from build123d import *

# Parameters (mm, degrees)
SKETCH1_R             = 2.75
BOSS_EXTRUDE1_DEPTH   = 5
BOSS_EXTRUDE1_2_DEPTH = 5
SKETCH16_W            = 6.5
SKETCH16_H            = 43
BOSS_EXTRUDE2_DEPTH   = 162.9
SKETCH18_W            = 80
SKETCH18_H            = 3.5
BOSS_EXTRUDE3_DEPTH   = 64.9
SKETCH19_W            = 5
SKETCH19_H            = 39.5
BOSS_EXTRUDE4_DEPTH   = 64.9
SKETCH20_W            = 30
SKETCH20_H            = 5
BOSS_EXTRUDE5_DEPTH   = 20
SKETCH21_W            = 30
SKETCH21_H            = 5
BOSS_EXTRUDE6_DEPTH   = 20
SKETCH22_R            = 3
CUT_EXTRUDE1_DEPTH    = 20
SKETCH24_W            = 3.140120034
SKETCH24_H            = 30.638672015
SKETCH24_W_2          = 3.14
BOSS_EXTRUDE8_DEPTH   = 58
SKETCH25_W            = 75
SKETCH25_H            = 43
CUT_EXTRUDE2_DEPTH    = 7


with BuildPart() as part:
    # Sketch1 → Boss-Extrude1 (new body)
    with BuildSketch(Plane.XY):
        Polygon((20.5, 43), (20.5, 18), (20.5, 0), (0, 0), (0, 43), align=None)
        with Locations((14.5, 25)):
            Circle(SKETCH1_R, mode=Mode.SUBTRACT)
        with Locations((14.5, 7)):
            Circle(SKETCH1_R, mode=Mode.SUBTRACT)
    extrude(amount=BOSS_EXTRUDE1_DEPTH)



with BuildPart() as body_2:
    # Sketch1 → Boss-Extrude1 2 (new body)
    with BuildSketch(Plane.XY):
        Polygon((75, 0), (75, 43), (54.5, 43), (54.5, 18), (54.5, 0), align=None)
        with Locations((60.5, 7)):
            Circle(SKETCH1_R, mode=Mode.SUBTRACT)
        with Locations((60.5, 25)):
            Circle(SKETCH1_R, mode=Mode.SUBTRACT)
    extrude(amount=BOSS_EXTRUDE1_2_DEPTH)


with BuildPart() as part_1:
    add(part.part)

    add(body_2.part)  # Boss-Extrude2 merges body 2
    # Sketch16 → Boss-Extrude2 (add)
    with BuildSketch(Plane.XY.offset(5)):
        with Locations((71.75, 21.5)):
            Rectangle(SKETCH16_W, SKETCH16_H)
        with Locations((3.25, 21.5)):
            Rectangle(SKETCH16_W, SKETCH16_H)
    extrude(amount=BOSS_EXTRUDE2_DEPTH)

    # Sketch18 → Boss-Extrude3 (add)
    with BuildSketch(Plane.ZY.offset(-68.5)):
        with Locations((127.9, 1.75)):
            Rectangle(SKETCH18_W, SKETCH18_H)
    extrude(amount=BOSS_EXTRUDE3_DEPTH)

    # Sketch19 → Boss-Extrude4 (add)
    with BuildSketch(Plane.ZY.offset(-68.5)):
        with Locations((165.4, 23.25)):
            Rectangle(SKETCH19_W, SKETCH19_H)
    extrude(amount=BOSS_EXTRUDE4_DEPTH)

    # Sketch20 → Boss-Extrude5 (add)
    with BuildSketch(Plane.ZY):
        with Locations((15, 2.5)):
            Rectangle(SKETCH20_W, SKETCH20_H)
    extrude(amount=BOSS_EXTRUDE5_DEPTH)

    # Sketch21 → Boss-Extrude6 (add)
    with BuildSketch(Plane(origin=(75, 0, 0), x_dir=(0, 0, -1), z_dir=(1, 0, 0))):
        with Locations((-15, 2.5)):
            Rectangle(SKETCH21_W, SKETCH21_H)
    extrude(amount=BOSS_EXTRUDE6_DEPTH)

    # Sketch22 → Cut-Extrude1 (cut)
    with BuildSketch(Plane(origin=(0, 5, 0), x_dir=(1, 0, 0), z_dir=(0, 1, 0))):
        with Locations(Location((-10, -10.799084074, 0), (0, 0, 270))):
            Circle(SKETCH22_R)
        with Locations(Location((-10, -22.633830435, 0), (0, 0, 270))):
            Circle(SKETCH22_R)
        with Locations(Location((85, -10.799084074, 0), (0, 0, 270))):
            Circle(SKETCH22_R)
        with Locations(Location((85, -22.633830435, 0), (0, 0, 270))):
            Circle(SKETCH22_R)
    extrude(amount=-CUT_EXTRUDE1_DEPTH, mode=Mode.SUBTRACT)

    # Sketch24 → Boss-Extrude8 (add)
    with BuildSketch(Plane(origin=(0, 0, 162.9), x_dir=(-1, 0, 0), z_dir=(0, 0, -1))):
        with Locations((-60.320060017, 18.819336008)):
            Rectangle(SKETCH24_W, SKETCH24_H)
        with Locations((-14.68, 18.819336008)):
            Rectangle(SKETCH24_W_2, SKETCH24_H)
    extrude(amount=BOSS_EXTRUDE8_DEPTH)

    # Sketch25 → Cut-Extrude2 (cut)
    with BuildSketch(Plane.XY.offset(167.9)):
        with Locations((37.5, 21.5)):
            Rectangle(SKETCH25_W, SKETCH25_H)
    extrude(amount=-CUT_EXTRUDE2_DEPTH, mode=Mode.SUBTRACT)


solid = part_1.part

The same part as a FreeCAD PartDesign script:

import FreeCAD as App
import Part
import Sketcher

V = App.Vector

doc = App.newDocument("Part")
body = doc.addObject("PartDesign::Body", "Body")

# Sketch on XY plane
sketch1 = body.newObject("Sketcher::SketchObject", "Sketch")
sketch1.AttachmentSupport = (doc.getObject("XY_Plane"), [""])
sketch1.MapMode = "FlatFace"
sketch1.addGeometry([
    Part.LineSegment(V(20.5, 0, 0), V(20.5, 43, 0)),  # 0
    Part.LineSegment(V(20.5, 43, 0), V(0, 43, 0)),  # 1
    Part.LineSegment(V(0, 43, 0), V(0, 0, 0)),  # 2
    Part.LineSegment(V(0, 0, 0), V(20.5, 0, 0)),  # 3
    Part.Circle(V(14.5, 7, 0), V(0, 0, 1), 2.8),  # 4
    Part.Circle(V(14.5, 25, 0), V(0, 0, 1), 2.8),  # 5
], False)
sketch1.addConstraint([
    Sketcher.Constraint("Coincident", 0, 2, 1, 1),
    Sketcher.Constraint("Coincident", 1, 2, 2, 1),
    Sketcher.Constraint("Coincident", 2, 2, 3, 1),
    Sketcher.Constraint("Coincident", 3, 2, 0, 1),
    Sketcher.Constraint("Vertical", 0),
    Sketcher.Constraint("Horizontal", 1),
    Sketcher.Constraint("Vertical", 2),
    Sketcher.Constraint("Horizontal", 3),
    Sketcher.Constraint("Coincident", 2, 2, -1, 1),
    Sketcher.Constraint("Equal", 4, 5),
    Sketcher.Constraint("Vertical", 4, 3, 5, 3),
    Sketcher.Constraint("Diameter", 4, 5.5),
    Sketcher.Constraint("DistanceY", 0, 1, 0, 2, 43.0),
    Sketcher.Constraint("DistanceX", 1, 2, 1, 1, 20.5),
    Sketcher.Constraint("DistanceY", -1, 1, 4, 3, 7.0),
    Sketcher.Constraint("DistanceY", -1, 1, 5, 3, 25.0),
    Sketcher.Constraint("DistanceX", 5, 3, 0, 2, 6.0),
])
pad1 = body.newObject("PartDesign::Pad", "Pad")
pad1.Profile = sketch1
pad1.Length = 5
body2 = doc.addObject("PartDesign::Body", "Body001")

# Sketch on XY plane
sketch2 = body2.newObject("Sketcher::SketchObject", "Sketch001")
sketch2.AttachmentSupport = (doc.getObject("XY_Plane001"), [""])
sketch2.MapMode = "FlatFace"
sketch2.addGeometry([
    Part.LineSegment(V(75, 0, 0), V(75, 43, 0)),  # 0
    Part.LineSegment(V(75, 43, 0), V(54.5, 43, 0)),  # 1
    Part.LineSegment(V(54.5, 43, 0), V(54.5, 0, 0)),  # 2
    Part.LineSegment(V(54.5, 0, 0), V(75, 0, 0)),  # 3
    Part.Circle(V(60.5, 7, 0), V(0, 0, 1), 2.8),  # 4
    Part.Circle(V(60.5, 25, 0), V(0, 0, 1), 2.8),  # 5
], False)
sketch2.addConstraint([
    Sketcher.Constraint("Coincident", 0, 2, 1, 1),
    Sketcher.Constraint("Coincident", 1, 2, 2, 1),
    Sketcher.Constraint("Coincident", 2, 2, 3, 1),
    Sketcher.Constraint("Coincident", 3, 2, 0, 1),
    Sketcher.Constraint("Vertical", 0),
    Sketcher.Constraint("Horizontal", 1),
    Sketcher.Constraint("Vertical", 2),
    Sketcher.Constraint("Horizontal", 3),
    Sketcher.Constraint("Equal", 4, 5),
    Sketcher.Constraint("PointOnObject", 2, 2, -1),
    Sketcher.Constraint("Vertical", 4, 3, 5, 3),
    Sketcher.Constraint("Diameter", 4, 5.5),
    Sketcher.Constraint("DistanceY", 0, 1, 0, 2, 43.0),
    Sketcher.Constraint("DistanceX", 1, 2, 1, 1, 20.5),
    Sketcher.Constraint("DistanceY", -1, 1, 4, 3, 7.0),
    Sketcher.Constraint("DistanceY", -1, 1, 5, 3, 25.0),
    Sketcher.Constraint("DistanceX", -1, 1, 0, 2, 75.0),
    Sketcher.Constraint("DistanceX", 1, 2, 5, 3, 6.0),
])
pad2 = body2.newObject("PartDesign::Pad", "Pad001")
pad2.Profile = sketch2
pad2.Length = 5
body.AllowCompound = True
doc.recompute()

boolean = body.newObject("PartDesign::Boolean", "Boolean")
boolean.Type = "Fuse"
boolean.addObjects([body2])

# Sketch on XY plane
sketch3 = body.newObject("Sketcher::SketchObject", "Sketch002")
sketch3.AttachmentSupport = (doc.getObject("XY_Plane"), [""])
sketch3.MapMode = "FlatFace"
sketch3.AttachmentOffset = App.Placement(V(0, 0, 5), App.Rotation())
sketch3.addGeometry([
    Part.LineSegment(V(68, 43, 0), V(68, 0, 0)),  # 0
    Part.LineSegment(V(68, 0, 0), V(75, 0, 0)),  # 1
    Part.LineSegment(V(75, 0, 0), V(75, 43, 0)),  # 2
    Part.LineSegment(V(75, 43, 0), V(68, 43, 0)),  # 3
    Part.LineSegment(V(0, 43, 0), V(0, 0, 0)),  # 4
    Part.LineSegment(V(0, 0, 0), V(6, 0, 0)),  # 5
    Part.LineSegment(V(6, 0, 0), V(6, 43, 0)),  # 6
    Part.LineSegment(V(6, 43, 0), V(0, 43, 0)),  # 7
], False)
sketch3.addConstraint([
    Sketcher.Constraint("Coincident", 0, 2, 1, 1),
    Sketcher.Constraint("Coincident", 1, 2, 2, 1),
    Sketcher.Constraint("Coincident", 2, 2, 3, 1),
    Sketcher.Constraint("Coincident", 3, 2, 0, 1),
    Sketcher.Constraint("Coincident", 4, 2, 5, 1),
    Sketcher.Constraint("Coincident", 5, 2, 6, 1),
    Sketcher.Constraint("Coincident", 6, 2, 7, 1),
    Sketcher.Constraint("Coincident", 7, 2, 4, 1),
    Sketcher.Constraint("Vertical", 0),
    Sketcher.Constraint("Horizontal", 1),
    Sketcher.Constraint("Vertical", 2),
    Sketcher.Constraint("Horizontal", 3),
    Sketcher.Constraint("Vertical", 4),
    Sketcher.Constraint("Horizontal", 5),
    Sketcher.Constraint("Vertical", 6),
    Sketcher.Constraint("Horizontal", 7),
    Sketcher.Constraint("Coincident", 4, 2, -1, 1),
    Sketcher.Constraint("PointOnObject", 0, 2, -1),
    Sketcher.Constraint("Horizontal", 3, 2, 6, 2),
    Sketcher.Constraint("Equal", 3, 5),
    Sketcher.Constraint("DistanceY", 0, 2, 0, 1, 43.0),
    Sketcher.Constraint("DistanceX", 1, 1, 1, 2, 6.5),
    Sketcher.Constraint("DistanceX", -1, 1, 1, 2, 75.0),
])
pad3 = body.newObject("PartDesign::Pad", "Pad002")
pad3.Profile = sketch3
pad3.Length = 162.9

# Sketch on YZ plane
sketch4 = body.newObject("Sketcher::SketchObject", "Sketch003")
sketch4.AttachmentSupport = (doc.getObject("YZ_Plane"), [""])
sketch4.MapMode = "FlatFace"
sketch4.AttachmentOffset = App.Placement(V(0, 0, 68.5), App.Rotation())
sketch4.addGeometry([
    Part.LineSegment(V(3.5, 87.9, 0), V(0, 87.9, 0)),
    Part.LineSegment(V(0, 87.9, 0), V(0, 167.9, 0)),
    Part.LineSegment(V(0, 167.9, 0), V(3.5, 167.9, 0)),
    Part.LineSegment(V(3.5, 167.9, 0), V(3.5, 87.9, 0)),
], False)
sketch4.addConstraint([
    Sketcher.Constraint("Coincident", 0, 2, 1, 1),
    Sketcher.Constraint("Coincident", 1, 2, 2, 1),
    Sketcher.Constraint("Coincident", 2, 2, 3, 1),
    Sketcher.Constraint("Coincident", 3, 2, 0, 1),
    Sketcher.Constraint("Horizontal", 0),
    Sketcher.Constraint("Vertical", 1),
    Sketcher.Constraint("Horizontal", 2),
    Sketcher.Constraint("Vertical", 3),
    Sketcher.Constraint("PointOnObject", 0, 2, -2),
    Sketcher.Constraint("DistanceY", 1, 1, 1, 2, 80.0),
    Sketcher.Constraint("DistanceX", 0, 2, 0, 1, 3.5),
    Sketcher.Constraint("DistanceY", -1, 1, 0, 2, 87.9),
])
pad4 = body.newObject("PartDesign::Pad", "Pad003")
pad4.Profile = sketch4
pad4.Length = 64.9
pad4.Reversed = True

# Sketch on YZ plane
sketch5 = body.newObject("Sketcher::SketchObject", "Sketch004")
sketch5.AttachmentSupport = (doc.getObject("YZ_Plane"), [""])
sketch5.MapMode = "FlatFace"
sketch5.AttachmentOffset = App.Placement(V(0, 0, 68.5), App.Rotation())
sketch5.addGeometry([
    Part.LineSegment(V(43, 163, 0), V(4, 163, 0)),
    Part.LineSegment(V(4, 163, 0), V(4, 168, 0)),
    Part.LineSegment(V(4, 168, 0), V(43, 168, 0)),
    Part.LineSegment(V(43, 168, 0), V(43, 163, 0)),
], False)
sketch5.addConstraint([
    Sketcher.Constraint("Coincident", 0, 2, 1, 1),
    Sketcher.Constraint("Coincident", 1, 2, 2, 1),
    Sketcher.Constraint("Coincident", 2, 2, 3, 1),
    Sketcher.Constraint("Coincident", 3, 2, 0, 1),
    Sketcher.Constraint("Horizontal", 0),
    Sketcher.Constraint("Vertical", 1),
    Sketcher.Constraint("Horizontal", 2),
    Sketcher.Constraint("Vertical", 3),
    Sketcher.Constraint("DistanceY", 1, 1, 1, 2, 5.0),
    Sketcher.Constraint("DistanceX", 0, 2, 0, 1, 39.5),
    Sketcher.Constraint("DistanceX", -1, 1, 2, 2, 43.0),
    Sketcher.Constraint("DistanceY", -1, 1, 0, 2, 162.9),
])
pad5 = body.newObject("PartDesign::Pad", "Pad004")
pad5.Profile = sketch5
pad5.Length = 64.9
pad5.Reversed = True

# Sketch on YZ plane
sketch6 = body.newObject("Sketcher::SketchObject", "Sketch005")
sketch6.AttachmentSupport = (doc.getObject("YZ_Plane"), [""])
sketch6.MapMode = "FlatFace"
sketch6.addGeometry([
    Part.LineSegment(V(5, 0, 0), V(0, 0, 0)),
    Part.LineSegment(V(0, 0, 0), V(0, 30, 0)),
    Part.LineSegment(V(0, 30, 0), V(5, 30, 0)),
    Part.LineSegment(V(5, 30, 0), V(5, 0, 0)),
], False)
sketch6.addConstraint([
    Sketcher.Constraint("Coincident", 0, 2, 1, 1),
    Sketcher.Constraint("Coincident", 1, 2, 2, 1),
    Sketcher.Constraint("Coincident", 2, 2, 3, 1),
    Sketcher.Constraint("Coincident", 3, 2, 0, 1),
    Sketcher.Constraint("Horizontal", 0),
    Sketcher.Constraint("Vertical", 1),
    Sketcher.Constraint("Horizontal", 2),
    Sketcher.Constraint("Vertical", 3),
    Sketcher.Constraint("Coincident", 0, 2, -1, 1),
    Sketcher.Constraint("DistanceX", 0, 2, 0, 1, 5.0),
    Sketcher.Constraint("DistanceY", 1, 1, 1, 2, 30.0),
])
pad6 = body.newObject("PartDesign::Pad", "Pad005")
pad6.Profile = sketch6
pad6.Length = 20
pad6.Reversed = True

# Sketch on YZ plane
sketch7 = body.newObject("Sketcher::SketchObject", "Sketch006")
sketch7.AttachmentSupport = (doc.getObject("YZ_Plane"), [""])
sketch7.MapMode = "FlatFace"
sketch7.AttachmentOffset = App.Placement(V(0, 0, 75), App.Rotation())
sketch7.addGeometry([
    Part.LineSegment(V(5, 30, 0), V(0, 30, 0)),
    Part.LineSegment(V(0, 30, 0), V(0, 0, 0)),
    Part.LineSegment(V(0, 0, 0), V(5, 0, 0)),
    Part.LineSegment(V(5, 0, 0), V(5, 30, 0)),
], False)
sketch7.addConstraint([
    Sketcher.Constraint("Coincident", 0, 2, 1, 1),
    Sketcher.Constraint("Coincident", 1, 2, 2, 1),
    Sketcher.Constraint("Coincident", 2, 2, 3, 1),
    Sketcher.Constraint("Coincident", 3, 2, 0, 1),
    Sketcher.Constraint("Horizontal", 0),
    Sketcher.Constraint("Vertical", 1),
    Sketcher.Constraint("Horizontal", 2),
    Sketcher.Constraint("Vertical", 3),
    Sketcher.Constraint("Coincident", 1, 2, -1, 1),
    Sketcher.Constraint("DistanceX", 0, 2, 0, 1, 5.0),
    Sketcher.Constraint("DistanceY", 1, 2, 1, 1, 30.0),
])
pad7 = body.newObject("PartDesign::Pad", "Pad006")
pad7.Profile = sketch7
pad7.Length = 20

# Sketch on XZ plane
sketch8 = body.newObject("Sketcher::SketchObject", "Sketch007")
sketch8.AttachmentSupport = (doc.getObject("XZ_Plane"), [""])
sketch8.MapMode = "FlatFace"
sketch8.AttachmentOffset = App.Placement(V(0, 0, -5), App.Rotation())
sketch8.addGeometry([
    Part.Circle(V(-10, 10.8, 0), V(0, 0, 1), 3),
    Part.Circle(V(-10, 22.6, 0), V(0, 0, 1), 3),
    Part.Circle(V(85, 10.8, 0), V(0, 0, 1), 3),
    Part.Circle(V(85, 22.6, 0), V(0, 0, 1), 3),
], False)
sketch8.addConstraint([
    Sketcher.Constraint("Equal", 0, 1),
    Sketcher.Constraint("Equal", 1, 2),
    Sketcher.Constraint("Equal", 2, 3),
    Sketcher.Constraint("Horizontal", 0, 3, 2, 3),
    Sketcher.Constraint("Horizontal", 1, 3, 3, 3),
    Sketcher.Constraint("Vertical", 0, 3, 1, 3),
    Sketcher.Constraint("Vertical", 2, 3, 3, 3),
    Sketcher.Constraint("Diameter", 0, 6.0),
    Sketcher.Constraint("DistanceX", 0, 3, -1, 1, 10.0),
    Sketcher.Constraint("DistanceX", -1, 1, 2, 3, 85.0),
    Sketcher.Constraint("DistanceY", -1, 1, 1, 3, 22.63383),
    Sketcher.Constraint("DistanceY", -1, 1, 0, 3, 10.799084),
])
pocket1 = body.newObject("PartDesign::Pocket", "Pocket")
pocket1.Profile = sketch8
pocket1.Length = 20
pocket1.Reversed = True

# Sketch on XY plane
sketch9 = body.newObject("Sketcher::SketchObject", "Sketch008")
sketch9.AttachmentSupport = (doc.getObject("XY_Plane"), [""])
sketch9.MapMode = "FlatFace"
sketch9.AttachmentOffset = App.Placement(V(0, 0, 162.9), App.Rotation())
sketch9.addGeometry([
    Part.LineSegment(V(61.9, 34.1, 0), V(61.9, 3.5, 0)),  # 0
    Part.LineSegment(V(61.9, 3.5, 0), V(58.8, 3.5, 0)),  # 1
    Part.LineSegment(V(58.8, 3.5, 0), V(58.8, 34.1, 0)),  # 2
    Part.LineSegment(V(58.8, 34.1, 0), V(61.9, 34.1, 0)),  # 3
    Part.LineSegment(V(16.2, 34.1, 0), V(16.2, 3.5, 0)),  # 4
    Part.LineSegment(V(16.2, 3.5, 0), V(13.1, 3.5, 0)),  # 5
    Part.LineSegment(V(13.1, 3.5, 0), V(13.1, 34.1, 0)),  # 6
    Part.LineSegment(V(13.1, 34.1, 0), V(16.2, 34.1, 0)),  # 7
], False)
sketch9.addConstraint([
    Sketcher.Constraint("Coincident", 0, 2, 1, 1),
    Sketcher.Constraint("Coincident", 1, 2, 2, 1),
    Sketcher.Constraint("Coincident", 2, 2, 3, 1),
    Sketcher.Constraint("Coincident", 3, 2, 0, 1),
    Sketcher.Constraint("Coincident", 4, 2, 5, 1),
    Sketcher.Constraint("Coincident", 5, 2, 6, 1),
    Sketcher.Constraint("Coincident", 6, 2, 7, 1),
    Sketcher.Constraint("Coincident", 7, 2, 4, 1),
    Sketcher.Constraint("Vertical", 0),
    Sketcher.Constraint("Horizontal", 1),
    Sketcher.Constraint("Vertical", 2),
    Sketcher.Constraint("Horizontal", 3),
    Sketcher.Constraint("Vertical", 4),
    Sketcher.Constraint("Horizontal", 5),
    Sketcher.Constraint("Vertical", 6),
    Sketcher.Constraint("Horizontal", 7),
    Sketcher.Constraint("Horizontal", 1, 2, 4, 2),
    Sketcher.Constraint("Horizontal", 3, 2, 6, 2),
    Sketcher.Constraint("DistanceX", 5, 2, 5, 1, 3.14),
    Sketcher.Constraint("DistanceY", -1, 1, 0, 2, 3.5),
    Sketcher.Constraint("DistanceX", 4, 2, 1, 2, 42.5),
    Sketcher.Constraint("DistanceX", -1, 1, 1, 2, 58.75),
    Sketcher.Constraint("DistanceX", 1, 2, 1, 1, 3.14012),
    Sketcher.Constraint("DistanceY", 0, 2, 0, 1, 30.638672),
])
pad8 = body.newObject("PartDesign::Pad", "Pad007")
pad8.Profile = sketch9
pad8.Length = 58
pad8.Reversed = True

# Sketch on XY plane
sketch10 = body.newObject("Sketcher::SketchObject", "Sketch009")
sketch10.AttachmentSupport = (doc.getObject("XY_Plane"), [""])
sketch10.MapMode = "FlatFace"
sketch10.AttachmentOffset = App.Placement(V(0, 0, 167.9), App.Rotation())
sketch10.addGeometry([
    Part.LineSegment(V(0, 43, 0), V(0, 0, 0)),
    Part.LineSegment(V(0, 0, 0), V(75, 0, 0)),
    Part.LineSegment(V(75, 0, 0), V(75, 43, 0)),
    Part.LineSegment(V(75, 43, 0), V(0, 43, 0)),
], False)
sketch10.addConstraint([
    Sketcher.Constraint("Coincident", 0, 2, 1, 1),
    Sketcher.Constraint("Coincident", 1, 2, 2, 1),
    Sketcher.Constraint("Coincident", 2, 2, 3, 1),
    Sketcher.Constraint("Coincident", 3, 2, 0, 1),
    Sketcher.Constraint("Vertical", 0),
    Sketcher.Constraint("Horizontal", 1),
    Sketcher.Constraint("Vertical", 2),
    Sketcher.Constraint("Horizontal", 3),
    Sketcher.Constraint("Coincident", 0, 2, -1, 1),
    Sketcher.Constraint("DistanceX", 1, 1, 1, 2, 75.0),
    Sketcher.Constraint("DistanceY", 0, 2, 0, 1, 43.0),
])
pocket2 = body.newObject("PartDesign::Pocket", "Pocket001")
pocket2.Profile = sketch10
pocket2.Length = 7

doc.recompute()
